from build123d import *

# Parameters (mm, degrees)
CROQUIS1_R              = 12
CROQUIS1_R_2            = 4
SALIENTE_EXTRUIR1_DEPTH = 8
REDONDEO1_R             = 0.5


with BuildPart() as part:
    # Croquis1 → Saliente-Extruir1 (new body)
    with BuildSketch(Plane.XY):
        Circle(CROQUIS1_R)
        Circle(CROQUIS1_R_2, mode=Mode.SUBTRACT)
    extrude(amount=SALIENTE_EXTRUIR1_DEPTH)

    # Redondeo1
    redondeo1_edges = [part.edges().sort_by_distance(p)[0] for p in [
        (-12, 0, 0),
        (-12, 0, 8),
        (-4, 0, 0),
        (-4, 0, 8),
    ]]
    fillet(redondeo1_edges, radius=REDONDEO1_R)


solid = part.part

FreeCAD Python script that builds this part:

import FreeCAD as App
import Part
import Sketcher
from FreeCAD import Vector


def edges_at(feature, points):
    """Names of the edges that pass closest to the given points."""
    edges = feature.Shape.Edges
    near = lambda p: min(range(len(edges)), key=lambda i: edges[i].distToShape(Part.Vertex(*p))[0])
    return sorted({f"Edge{near(p) + 1}" for p in points})

doc = App.newDocument("Part")
body = doc.addObject("PartDesign::Body", "Body")

sketch1 = body.newObject("Sketcher::SketchObject", "Sketch")
sketch1.AttachmentSupport = (doc.getObject("XY_Plane"), [""])
sketch1.MapMode = "FlatFace"
sketch1.addGeometry(Part.Circle(Vector(0, 0, 0), Vector(0, 0, 1), 12), False)
sketch1.addGeometry(Part.Circle(Vector(0, 0, 0), Vector(0, 0, 1), 4), False)
sketch1.addConstraint(Sketcher.Constraint("Coincident", 0, 3, -1, 1))
sketch1.addConstraint(Sketcher.Constraint("Coincident", 1, 3, -1, 1))
sketch1.addConstraint(Sketcher.Constraint("Diameter", 0, 24.0))
sketch1.addConstraint(Sketcher.Constraint("Diameter", 1, 8.0))
pad1 = body.newObject("PartDesign::Pad", "Pad")
pad1.Profile = sketch1
pad1.Length = 8
doc.recompute()

fillet = body.newObject("PartDesign::Fillet", "Fillet")
fillet.Base = (pad1, edges_at(pad1, [
    (-12, 0, 0),
    (-12, 0, 8),
    (-4, 0, 0),
    (-4, 0, 8),
]))
fillet.Radius = 0.5

doc.recompute()
